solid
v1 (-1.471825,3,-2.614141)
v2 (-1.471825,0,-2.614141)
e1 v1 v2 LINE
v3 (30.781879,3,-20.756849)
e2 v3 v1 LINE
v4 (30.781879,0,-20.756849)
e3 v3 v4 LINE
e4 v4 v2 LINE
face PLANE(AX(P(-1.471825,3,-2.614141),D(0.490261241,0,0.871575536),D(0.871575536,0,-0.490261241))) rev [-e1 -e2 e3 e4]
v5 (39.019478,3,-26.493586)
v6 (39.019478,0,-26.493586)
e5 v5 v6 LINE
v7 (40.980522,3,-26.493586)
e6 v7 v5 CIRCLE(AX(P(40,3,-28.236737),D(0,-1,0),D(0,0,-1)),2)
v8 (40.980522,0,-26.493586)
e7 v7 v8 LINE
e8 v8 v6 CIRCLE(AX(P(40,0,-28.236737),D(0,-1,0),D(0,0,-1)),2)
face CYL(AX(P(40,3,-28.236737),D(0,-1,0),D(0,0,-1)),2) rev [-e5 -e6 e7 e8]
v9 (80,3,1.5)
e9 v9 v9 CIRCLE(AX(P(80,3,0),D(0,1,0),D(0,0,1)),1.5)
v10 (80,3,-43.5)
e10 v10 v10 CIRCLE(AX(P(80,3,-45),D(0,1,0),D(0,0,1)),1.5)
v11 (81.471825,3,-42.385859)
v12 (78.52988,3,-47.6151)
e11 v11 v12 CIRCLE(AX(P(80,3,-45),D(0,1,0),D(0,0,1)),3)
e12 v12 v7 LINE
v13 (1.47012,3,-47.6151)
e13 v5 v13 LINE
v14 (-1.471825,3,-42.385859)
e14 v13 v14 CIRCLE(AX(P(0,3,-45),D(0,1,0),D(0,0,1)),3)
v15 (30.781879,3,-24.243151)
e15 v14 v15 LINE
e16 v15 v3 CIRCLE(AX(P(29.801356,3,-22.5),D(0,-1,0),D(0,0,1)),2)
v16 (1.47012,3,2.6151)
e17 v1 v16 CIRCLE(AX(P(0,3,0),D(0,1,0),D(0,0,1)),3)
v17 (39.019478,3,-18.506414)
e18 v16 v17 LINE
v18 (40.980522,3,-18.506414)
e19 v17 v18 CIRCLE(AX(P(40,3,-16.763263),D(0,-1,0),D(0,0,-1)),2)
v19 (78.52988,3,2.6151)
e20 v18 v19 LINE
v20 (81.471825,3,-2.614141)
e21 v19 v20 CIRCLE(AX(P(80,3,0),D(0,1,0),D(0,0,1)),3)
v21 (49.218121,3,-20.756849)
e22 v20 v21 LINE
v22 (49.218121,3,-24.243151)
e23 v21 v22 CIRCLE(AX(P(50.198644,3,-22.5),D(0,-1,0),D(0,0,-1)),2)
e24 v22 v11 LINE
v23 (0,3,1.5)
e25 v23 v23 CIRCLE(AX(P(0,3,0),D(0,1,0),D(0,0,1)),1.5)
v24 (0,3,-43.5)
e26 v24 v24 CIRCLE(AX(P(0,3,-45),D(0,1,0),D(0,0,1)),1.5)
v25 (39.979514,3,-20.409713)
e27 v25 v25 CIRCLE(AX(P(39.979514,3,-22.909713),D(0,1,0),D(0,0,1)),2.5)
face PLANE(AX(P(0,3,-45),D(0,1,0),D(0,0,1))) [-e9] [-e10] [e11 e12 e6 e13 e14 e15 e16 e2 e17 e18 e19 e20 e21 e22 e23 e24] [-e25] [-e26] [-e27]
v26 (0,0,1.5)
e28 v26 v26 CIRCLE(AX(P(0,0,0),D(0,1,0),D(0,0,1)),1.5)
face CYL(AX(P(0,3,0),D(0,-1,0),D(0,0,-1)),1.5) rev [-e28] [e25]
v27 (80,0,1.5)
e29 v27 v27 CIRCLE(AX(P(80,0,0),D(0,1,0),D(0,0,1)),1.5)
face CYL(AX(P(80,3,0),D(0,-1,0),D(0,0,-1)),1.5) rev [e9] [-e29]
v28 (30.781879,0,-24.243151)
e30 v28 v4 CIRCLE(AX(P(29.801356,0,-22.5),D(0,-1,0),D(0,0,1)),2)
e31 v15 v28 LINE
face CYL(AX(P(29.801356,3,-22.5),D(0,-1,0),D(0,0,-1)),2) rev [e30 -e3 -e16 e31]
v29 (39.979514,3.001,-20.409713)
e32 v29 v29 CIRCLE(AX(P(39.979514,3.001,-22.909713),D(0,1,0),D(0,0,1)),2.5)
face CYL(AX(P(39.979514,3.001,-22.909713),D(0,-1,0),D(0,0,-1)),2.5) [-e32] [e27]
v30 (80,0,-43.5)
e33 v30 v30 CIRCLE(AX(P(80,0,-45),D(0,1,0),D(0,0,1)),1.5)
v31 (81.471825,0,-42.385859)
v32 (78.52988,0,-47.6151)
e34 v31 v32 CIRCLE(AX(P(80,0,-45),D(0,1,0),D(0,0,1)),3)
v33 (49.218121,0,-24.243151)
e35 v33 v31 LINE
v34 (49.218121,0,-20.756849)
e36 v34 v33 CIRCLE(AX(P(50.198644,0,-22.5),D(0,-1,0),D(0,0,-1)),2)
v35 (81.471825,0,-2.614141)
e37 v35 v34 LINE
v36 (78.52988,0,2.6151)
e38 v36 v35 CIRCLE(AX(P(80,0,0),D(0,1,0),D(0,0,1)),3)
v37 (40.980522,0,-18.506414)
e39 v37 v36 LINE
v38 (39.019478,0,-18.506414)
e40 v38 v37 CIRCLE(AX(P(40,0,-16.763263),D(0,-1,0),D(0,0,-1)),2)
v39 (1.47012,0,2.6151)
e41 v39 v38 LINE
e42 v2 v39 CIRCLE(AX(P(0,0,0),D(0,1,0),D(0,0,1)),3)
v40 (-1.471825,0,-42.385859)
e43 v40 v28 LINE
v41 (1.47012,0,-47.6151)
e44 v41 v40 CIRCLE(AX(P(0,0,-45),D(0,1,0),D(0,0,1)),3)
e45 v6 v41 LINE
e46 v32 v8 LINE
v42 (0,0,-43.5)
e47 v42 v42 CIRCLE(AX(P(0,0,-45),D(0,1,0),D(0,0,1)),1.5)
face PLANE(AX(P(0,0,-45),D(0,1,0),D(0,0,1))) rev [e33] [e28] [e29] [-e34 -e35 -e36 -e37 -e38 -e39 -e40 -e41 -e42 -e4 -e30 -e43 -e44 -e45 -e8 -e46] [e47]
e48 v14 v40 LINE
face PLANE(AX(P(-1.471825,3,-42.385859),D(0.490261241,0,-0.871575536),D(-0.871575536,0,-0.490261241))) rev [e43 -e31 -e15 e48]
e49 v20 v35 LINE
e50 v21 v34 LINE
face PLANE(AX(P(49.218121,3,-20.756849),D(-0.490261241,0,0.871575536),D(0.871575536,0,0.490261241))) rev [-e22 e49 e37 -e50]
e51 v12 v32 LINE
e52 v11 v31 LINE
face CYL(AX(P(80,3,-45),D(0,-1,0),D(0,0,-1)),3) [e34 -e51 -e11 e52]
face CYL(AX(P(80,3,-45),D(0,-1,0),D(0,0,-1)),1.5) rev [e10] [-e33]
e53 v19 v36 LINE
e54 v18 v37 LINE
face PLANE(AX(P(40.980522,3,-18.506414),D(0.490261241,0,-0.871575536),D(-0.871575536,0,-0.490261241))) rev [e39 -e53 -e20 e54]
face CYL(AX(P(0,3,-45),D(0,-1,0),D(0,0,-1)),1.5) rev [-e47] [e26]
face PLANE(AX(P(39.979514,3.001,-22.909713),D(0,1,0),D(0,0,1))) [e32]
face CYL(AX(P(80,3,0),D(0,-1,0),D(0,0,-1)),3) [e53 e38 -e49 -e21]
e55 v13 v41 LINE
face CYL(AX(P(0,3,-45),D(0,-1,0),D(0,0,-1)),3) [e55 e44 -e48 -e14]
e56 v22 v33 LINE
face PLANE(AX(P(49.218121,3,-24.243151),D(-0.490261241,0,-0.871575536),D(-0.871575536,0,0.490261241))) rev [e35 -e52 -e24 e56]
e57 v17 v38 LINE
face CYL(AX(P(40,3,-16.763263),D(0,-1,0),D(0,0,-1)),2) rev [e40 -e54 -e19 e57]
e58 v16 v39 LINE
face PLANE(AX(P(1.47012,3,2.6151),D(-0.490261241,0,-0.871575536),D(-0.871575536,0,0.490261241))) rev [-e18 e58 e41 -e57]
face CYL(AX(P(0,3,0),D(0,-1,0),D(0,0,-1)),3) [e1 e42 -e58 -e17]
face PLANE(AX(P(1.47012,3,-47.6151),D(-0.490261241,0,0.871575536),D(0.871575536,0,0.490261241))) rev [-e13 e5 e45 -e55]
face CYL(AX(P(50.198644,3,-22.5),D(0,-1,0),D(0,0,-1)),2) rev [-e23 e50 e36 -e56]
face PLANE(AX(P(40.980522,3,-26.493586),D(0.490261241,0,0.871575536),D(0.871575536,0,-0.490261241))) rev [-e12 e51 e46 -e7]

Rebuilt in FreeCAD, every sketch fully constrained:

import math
import FreeCAD as App
import Part
import Sketcher
Q = App.Units.Quantity

doc = App.newDocument("Part")
body = doc.addObject("PartDesign::Body", "Body")

# Sketch on XZ plane
sketch1 = body.newObject("Sketcher::SketchObject", "Sketch")
sketch1.AttachmentSupport = (doc.getObject("XZ_Plane"), [""])
sketch1.MapMode = "FlatFace"
sketch1.addGeometry(Part.LineSegment(App.Vector(39, -26.5, 0), App.Vector(1.5, -47.6, 0)), False)
sketch1.addGeometry(Part.ArcOfCircle(Part.Circle(App.Vector(0, -45, 0), App.Vector(0, 0, 1), 3), math.radians(119), math.radians(299)), False)
sketch1.addGeometry(Part.LineSegment(App.Vector(-1.5, -42.4, 0), App.Vector(30.8, -24.2, 0)), False)
sketch1.addGeometry(Part.ArcOfCircle(Part.Circle(App.Vector(29.8, -22.5, 0), App.Vector(0, 0, 1), 2), math.radians(-61), math.radians(61)), False)
sketch1.addGeometry(Part.LineSegment(App.Vector(30.8, -20.8, 0), App.Vector(-1.5, -2.6, 0)), False)
sketch1.addGeometry(Part.ArcOfCircle(Part.Circle(App.Vector(0, 0, 0), App.Vector(0, 0, 1), 3), math.radians(61), math.radians(241)), False)
sketch1.addGeometry(Part.LineSegment(App.Vector(1.5, 2.6, 0), App.Vector(39, -18.5, 0)), False)
sketch1.addGeometry(Part.ArcOfCircle(Part.Circle(App.Vector(40, -16.8, 0), App.Vector(0, 0, 1), 2), math.radians(-119), math.radians(-61)), False)
sketch1.addGeometry(Part.LineSegment(App.Vector(41, -18.5, 0), App.Vector(78.5, 2.6, 0)), False)
sketch1.addGeometry(Part.ArcOfCircle(Part.Circle(App.Vector(80, 0, 0), App.Vector(0, 0, 1), 3), math.radians(-61), math.radians(119)), False)
sketch1.addGeometry(Part.LineSegment(App.Vector(81.5, -2.6, 0), App.Vector(49.2, -20.8, 0)), False)
sketch1.addGeometry(Part.ArcOfCircle(Part.Circle(App.Vector(50.2, -22.5, 0), App.Vector(0, 0, 1), 2), math.radians(119), math.radians(241)), False)
sketch1.addGeometry(Part.LineSegment(App.Vector(49.2, -24.2, 0), App.Vector(81.5, -42.4, 0)), False)
sketch1.addGeometry(Part.ArcOfCircle(Part.Circle(App.Vector(80, -45, 0), App.Vector(0, 0, 1), 3), math.radians(-119), math.radians(61)), False)
sketch1.addGeometry(Part.LineSegment(App.Vector(78.5, -47.6, 0), App.Vector(41, -26.5, 0)), False)
sketch1.addGeometry(Part.ArcOfCircle(Part.Circle(App.Vector(40, -28.2, 0), App.Vector(0, 0, 1), 2), math.radians(61), math.radians(119)), False)
sketch1.addGeometry(Part.Circle(App.Vector(80, 0, 0), App.Vector(0, 0, 1), 1.5), False)
sketch1.addGeometry(Part.Circle(App.Vector(0, 0, 0), App.Vector(0, 0, 1), 1.5), False)
sketch1.addGeometry(Part.Circle(App.Vector(80, -45, 0), App.Vector(0, 0, 1), 1.5), False)
sketch1.addGeometry(Part.Circle(App.Vector(0, -45, 0), App.Vector(0, 0, 1), 1.5), False)
sketch1.addConstraint(Sketcher.Constraint("Coincident", 0, 2, 1, 2))
sketch1.addConstraint(Sketcher.Constraint("Coincident", 1, 1, 2, 1))
sketch1.addConstraint(Sketcher.Constraint("Tangent", 2, 2, 3, 1))
sketch1.addConstraint(Sketcher.Constraint("Tangent", 3, 2, 4, 1))
sketch1.addConstraint(Sketcher.Constraint("Coincident", 4, 2, 5, 2))
sketch1.addConstraint(Sketcher.Constraint("Coincident", 5, 1, 6, 1))
sketch1.addConstraint(Sketcher.Constraint("Tangent", 6, 2, 7, 1))
sketch1.addConstraint(Sketcher.Constraint("Tangent", 7, 2, 8, 1))
sketch1.addConstraint(Sketcher.Constraint("Coincident", 8, 2, 9, 2))
sketch1.addConstraint(Sketcher.Constraint("Coincident", 9, 1, 10, 1))
sketch1.addConstraint(Sketcher.Constraint("Tangent", 10, 2, 11, 1))
sketch1.addConstraint(Sketcher.Constraint("Tangent", 11, 2, 12, 1))
sketch1.addConstraint(Sketcher.Constraint("Coincident", 12, 2, 13, 2))
sketch1.addConstraint(Sketcher.Constraint("Coincident", 13, 1, 14, 1))
sketch1.addConstraint(Sketcher.Constraint("Tangent", 14, 2, 15, 1))
sketch1.addConstraint(Sketcher.Constraint("Tangent", 15, 2, 0, 1))
sketch1.addConstraint(Sketcher.Constraint("Coincident", 5, 3, -1, 1))
sketch1.addConstraint(Sketcher.Constraint("Coincident", 17, 3, -1, 1))
sketch1.addConstraint(Sketcher.Constraint("Coincident", 16, 3, 9, 3))
sketch1.addConstraint(Sketcher.Constraint("Coincident", 18, 3, 13, 3))
sketch1.addConstraint(Sketcher.Constraint("Coincident", 19, 3, 1, 3))
sketch1.addConstraint(Sketcher.Constraint("Equal", 1, 5))
sketch1.addConstraint(Sketcher.Constraint("Equal", 3, 7))
sketch1.addConstraint(Sketcher.Constraint("Equal", 5, 9))
sketch1.addConstraint(Sketcher.Constraint("Equal", 7, 11))
sketch1.addConstraint(Sketcher.Constraint("Equal", 9, 13))
sketch1.addConstraint(Sketcher.Constraint("Equal", 11, 15))
sketch1.addConstraint(Sketcher.Constraint("Equal", 16, 17))
sketch1.addConstraint(Sketcher.Constraint("Equal", 17, 18))
sketch1.addConstraint(Sketcher.Constraint("Equal", 18, 19))
sketch1.addConstraint(Sketcher.Constraint("PointOnObject", 1, 3, -2))
sketch1.addConstraint(Sketcher.Constraint("PointOnObject", 9, 3, -1))
sketch1.addConstraint(Sketcher.Constraint("Parallel", 0, 2))
sketch1.addConstraint(Sketcher.Constraint("Parallel", 4, 6))
sketch1.addConstraint(Sketcher.Constraint("Parallel", 2, 8))
sketch1.addConstraint(Sketcher.Constraint("Parallel", 8, 10))
sketch1.addConstraint(Sketcher.Constraint("Parallel", 6, 12))
sketch1.addConstraint(Sketcher.Constraint("Parallel", 12, 14))
sketch1.addConstraint(Sketcher.Constraint("Horizontal", 3, 3, 11, 3))
sketch1.addConstraint(Sketcher.Constraint("Horizontal", 1, 3, 13, 3))
sketch1.addConstraint(Sketcher.Constraint("Horizontal", 6, 2, 7, 2))
sketch1.addConstraint(Sketcher.Constraint("Horizontal", 5, 1, 8, 2))
sketch1.addConstraint(Sketcher.Constraint("Horizontal", 4, 2, 9, 1))
sketch1.addConstraint(Sketcher.Constraint("Horizontal", 1, 1, 12, 2))
sketch1.addConstraint(Sketcher.Constraint("Horizontal", 0, 2, 13, 1))
sketch1.addConstraint(Sketcher.Constraint("Vertical", 1, 1, 4, 2))
sketch1.addConstraint(Sketcher.Constraint("Vertical", 0, 2, 5, 1))
sketch1.addConstraint(Sketcher.Constraint("Diameter", 16, Q("3 mm")))
sketch1.addConstraint(Sketcher.Constraint("Radius", 1, Q("3 mm")))
sketch1.addConstraint(Sketcher.Constraint("Radius", 3, Q("2 mm")))
sketch1.addConstraint(Sketcher.Constraint("DistanceY", 1, 3, -1, 1, Q("45 mm")))
sketch1.addConstraint(Sketcher.Constraint("DistanceX", -1, 1, 7, 3, Q("40 mm")))
sketch1.addConstraint(Sketcher.Constraint("DistanceY", 0, 2, -1, 1, Q("47.6151 mm")))
sketch1.addConstraint(Sketcher.Constraint("DistanceX", 3, 2, 6, 2, Q("8.237599 mm")))
sketch1.addConstraint(Sketcher.Constraint("DistanceY", 1, 1, -1, 1, Q("42.385859 mm")))
pad1 = body.newObject("PartDesign::Pad", "Pad")
pad1.Profile = sketch1
pad1.Length = 3
pad1.Reversed = True

# Sketch on XZ plane
sketch2 = body.newObject("Sketcher::SketchObject", "Sketch001")
sketch2.AttachmentSupport = (doc.getObject("XZ_Plane"), [""])
sketch2.MapMode = "FlatFace"
sketch2.AttachmentOffset = App.Placement(App.Vector(0, 0, -3), App.Rotation())
sketch2.addGeometry(Part.Circle(App.Vector(40, -22.9, 0), App.Vector(0, 0, 1), 2.5), False)
sketch2.addConstraint(Sketcher.Constraint("Diameter", 0, Q("5 mm")))
sketch2.addConstraint(Sketcher.Constraint("DistanceX", -1, 1, 0, 3, Q("39.979514 mm")))
sketch2.addConstraint(Sketcher.Constraint("DistanceY", 0, 3, -1, 1, Q("22.909713 mm")))
pad2 = body.newObject("PartDesign::Pad", "Pad001")
pad2.Profile = sketch2
pad2.Length = 0.001
pad2.Reversed = True

doc.recompute()
